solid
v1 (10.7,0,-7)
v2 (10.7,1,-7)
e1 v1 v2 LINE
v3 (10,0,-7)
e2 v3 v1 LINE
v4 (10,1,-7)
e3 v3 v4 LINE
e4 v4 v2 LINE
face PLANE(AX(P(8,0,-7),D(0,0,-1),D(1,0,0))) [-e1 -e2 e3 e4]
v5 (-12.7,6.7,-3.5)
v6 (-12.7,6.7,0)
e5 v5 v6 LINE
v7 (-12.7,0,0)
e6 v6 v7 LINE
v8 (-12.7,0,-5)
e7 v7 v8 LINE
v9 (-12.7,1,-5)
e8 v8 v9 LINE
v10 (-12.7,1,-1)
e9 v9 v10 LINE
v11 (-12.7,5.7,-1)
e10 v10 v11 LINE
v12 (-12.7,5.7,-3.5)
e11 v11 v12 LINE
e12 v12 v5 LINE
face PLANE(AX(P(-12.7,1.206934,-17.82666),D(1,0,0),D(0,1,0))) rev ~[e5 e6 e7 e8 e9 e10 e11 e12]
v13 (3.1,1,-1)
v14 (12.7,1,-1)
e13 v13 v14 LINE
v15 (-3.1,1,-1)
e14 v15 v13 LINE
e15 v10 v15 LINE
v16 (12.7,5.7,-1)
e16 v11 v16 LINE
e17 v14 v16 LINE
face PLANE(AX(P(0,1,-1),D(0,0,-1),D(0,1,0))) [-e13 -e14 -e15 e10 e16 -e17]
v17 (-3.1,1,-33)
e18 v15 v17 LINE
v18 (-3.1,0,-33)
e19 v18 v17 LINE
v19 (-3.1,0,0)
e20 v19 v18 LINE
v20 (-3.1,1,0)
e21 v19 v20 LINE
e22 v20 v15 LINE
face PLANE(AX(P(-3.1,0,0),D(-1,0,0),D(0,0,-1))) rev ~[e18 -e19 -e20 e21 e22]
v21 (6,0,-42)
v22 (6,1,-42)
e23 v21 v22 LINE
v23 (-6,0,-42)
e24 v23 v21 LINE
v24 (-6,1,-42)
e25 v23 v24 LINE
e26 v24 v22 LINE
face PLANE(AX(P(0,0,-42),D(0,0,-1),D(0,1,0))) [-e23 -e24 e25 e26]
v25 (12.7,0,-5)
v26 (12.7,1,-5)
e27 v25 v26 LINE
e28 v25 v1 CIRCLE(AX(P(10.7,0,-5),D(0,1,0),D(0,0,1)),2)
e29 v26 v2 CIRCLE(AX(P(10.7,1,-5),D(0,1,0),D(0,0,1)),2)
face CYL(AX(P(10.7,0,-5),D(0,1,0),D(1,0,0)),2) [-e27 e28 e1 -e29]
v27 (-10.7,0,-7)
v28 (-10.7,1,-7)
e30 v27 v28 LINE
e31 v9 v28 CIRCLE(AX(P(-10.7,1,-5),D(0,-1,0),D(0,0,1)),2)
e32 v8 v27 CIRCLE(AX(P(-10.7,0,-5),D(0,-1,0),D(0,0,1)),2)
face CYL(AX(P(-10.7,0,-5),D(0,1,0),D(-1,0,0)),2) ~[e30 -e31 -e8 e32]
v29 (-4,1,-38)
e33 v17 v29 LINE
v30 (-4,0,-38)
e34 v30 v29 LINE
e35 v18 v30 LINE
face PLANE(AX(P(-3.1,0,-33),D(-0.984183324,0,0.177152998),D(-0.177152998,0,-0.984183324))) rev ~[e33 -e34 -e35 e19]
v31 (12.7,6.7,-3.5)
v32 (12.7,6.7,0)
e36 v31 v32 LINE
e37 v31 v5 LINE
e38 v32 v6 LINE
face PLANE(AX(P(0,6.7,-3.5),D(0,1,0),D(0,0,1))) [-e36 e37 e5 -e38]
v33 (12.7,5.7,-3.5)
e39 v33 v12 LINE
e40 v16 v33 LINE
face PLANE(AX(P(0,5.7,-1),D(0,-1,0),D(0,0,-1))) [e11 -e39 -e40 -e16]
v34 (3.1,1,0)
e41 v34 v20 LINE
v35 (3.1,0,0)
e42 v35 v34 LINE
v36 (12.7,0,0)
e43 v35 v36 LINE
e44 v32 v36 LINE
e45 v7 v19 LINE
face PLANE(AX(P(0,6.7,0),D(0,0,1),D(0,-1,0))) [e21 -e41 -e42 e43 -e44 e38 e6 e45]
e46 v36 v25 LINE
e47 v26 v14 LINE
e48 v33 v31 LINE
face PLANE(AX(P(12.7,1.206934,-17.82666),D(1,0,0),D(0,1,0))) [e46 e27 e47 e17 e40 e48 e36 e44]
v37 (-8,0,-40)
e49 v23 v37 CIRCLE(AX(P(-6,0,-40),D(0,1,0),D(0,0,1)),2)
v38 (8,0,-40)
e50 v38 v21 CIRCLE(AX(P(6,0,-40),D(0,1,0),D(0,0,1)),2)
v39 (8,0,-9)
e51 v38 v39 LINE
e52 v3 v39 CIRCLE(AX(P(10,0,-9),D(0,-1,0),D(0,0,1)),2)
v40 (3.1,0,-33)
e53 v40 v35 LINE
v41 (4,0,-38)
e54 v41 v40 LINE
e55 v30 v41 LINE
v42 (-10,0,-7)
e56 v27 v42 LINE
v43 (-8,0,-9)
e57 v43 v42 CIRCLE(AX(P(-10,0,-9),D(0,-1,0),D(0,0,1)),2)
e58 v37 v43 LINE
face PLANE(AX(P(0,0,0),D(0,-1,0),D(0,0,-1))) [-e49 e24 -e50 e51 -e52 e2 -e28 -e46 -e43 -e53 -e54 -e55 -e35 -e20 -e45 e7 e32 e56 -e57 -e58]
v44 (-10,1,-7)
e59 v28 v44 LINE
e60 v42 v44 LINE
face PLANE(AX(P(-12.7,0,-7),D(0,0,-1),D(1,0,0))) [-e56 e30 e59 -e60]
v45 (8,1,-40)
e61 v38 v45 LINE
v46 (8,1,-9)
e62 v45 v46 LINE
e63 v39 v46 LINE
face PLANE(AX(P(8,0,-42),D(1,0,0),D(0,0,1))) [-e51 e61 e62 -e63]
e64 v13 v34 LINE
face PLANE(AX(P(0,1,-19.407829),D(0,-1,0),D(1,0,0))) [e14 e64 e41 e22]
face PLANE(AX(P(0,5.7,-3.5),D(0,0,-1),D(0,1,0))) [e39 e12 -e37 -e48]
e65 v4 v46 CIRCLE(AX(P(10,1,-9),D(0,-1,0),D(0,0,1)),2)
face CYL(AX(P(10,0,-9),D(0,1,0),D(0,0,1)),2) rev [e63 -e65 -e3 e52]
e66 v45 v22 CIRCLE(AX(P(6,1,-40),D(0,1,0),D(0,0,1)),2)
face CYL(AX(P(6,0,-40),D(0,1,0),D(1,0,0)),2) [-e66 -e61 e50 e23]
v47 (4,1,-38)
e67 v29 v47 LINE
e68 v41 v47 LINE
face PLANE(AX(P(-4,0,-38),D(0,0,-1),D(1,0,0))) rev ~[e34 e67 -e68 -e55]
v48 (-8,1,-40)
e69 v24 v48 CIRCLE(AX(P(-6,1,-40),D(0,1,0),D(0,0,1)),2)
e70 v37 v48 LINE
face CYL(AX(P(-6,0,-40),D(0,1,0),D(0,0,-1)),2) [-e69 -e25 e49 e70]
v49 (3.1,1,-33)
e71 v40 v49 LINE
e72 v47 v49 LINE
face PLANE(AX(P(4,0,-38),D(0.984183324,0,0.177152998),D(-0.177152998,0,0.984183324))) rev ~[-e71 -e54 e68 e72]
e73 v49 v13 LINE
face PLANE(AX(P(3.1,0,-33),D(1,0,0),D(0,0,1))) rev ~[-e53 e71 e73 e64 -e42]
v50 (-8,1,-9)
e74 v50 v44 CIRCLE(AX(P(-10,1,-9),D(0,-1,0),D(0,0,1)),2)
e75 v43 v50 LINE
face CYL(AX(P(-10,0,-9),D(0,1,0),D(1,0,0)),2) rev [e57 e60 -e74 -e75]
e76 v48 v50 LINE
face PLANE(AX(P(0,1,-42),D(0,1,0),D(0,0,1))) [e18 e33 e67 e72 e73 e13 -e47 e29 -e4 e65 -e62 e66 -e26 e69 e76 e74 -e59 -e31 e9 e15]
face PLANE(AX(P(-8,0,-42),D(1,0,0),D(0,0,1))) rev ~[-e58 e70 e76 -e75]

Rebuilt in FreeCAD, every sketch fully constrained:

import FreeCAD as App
import Part
import Sketcher

V = App.Vector


def edges_at(feature, points):
    """Names of the edges that pass closest to the given points."""
    edges = feature.Shape.Edges
    near = lambda p: min(range(len(edges)), key=lambda i: edges[i].distToShape(Part.Vertex(*p))[0])
    return sorted({f"Edge{near(p) + 1}" for p in points})


def add_polygon(sketch, points):
    """Adds a closed chain of lines whose ends are joined by coincident constraints."""
    first, n = sketch.GeometryCount, len(points)
    for a, b in zip(points, points[1:] + points[:1]):
        sketch.addGeometry(Part.LineSegment(App.Vector(*a, 0), App.Vector(*b, 0)), False)
    for i in range(n):
        sketch.addConstraint(Sketcher.Constraint("Coincident", first + i, 2, first + (i + 1) % n, 1))

doc = App.newDocument("Part")
body = doc.addObject("PartDesign::Body", "Body")

# Sketch on YZ plane
sketch1 = body.newObject("Sketcher::SketchObject", "Sketch")
sketch1.AttachmentSupport = (doc.getObject("YZ_Plane"), [""])
sketch1.MapMode = "FlatFace"
add_polygon(sketch1, [(6.7, 0), (0, 0), (0, -42), (1, -42), (1, -1), (5.7, -1), (5.7, -3.5), (6.7, -3.5)])  # lines 0-7
sketch1.addConstraint([
    Sketcher.Constraint("Horizontal", 0),
    Sketcher.Constraint("Vertical", 1),
    Sketcher.Constraint("Horizontal", 2),
    Sketcher.Constraint("Vertical", 3),
    Sketcher.Constraint("Horizontal", 4),
    Sketcher.Constraint("Vertical", 5),
    Sketcher.Constraint("Horizontal", 6),
    Sketcher.Constraint("Vertical", 7),
    Sketcher.Constraint("Coincident", 0, 2, -1, 1),
    Sketcher.Constraint("Equal", 2, 6),
    Sketcher.Constraint("DistanceX", 2, 1, 2, 2, 1.0),
    Sketcher.Constraint("DistanceY", 1, 2, 1, 1, 42.0),
    Sketcher.Constraint("DistanceY", 3, 1, 3, 2, 41.0),
    Sketcher.Constraint("DistanceX", 0, 2, 0, 1, 6.7),
    Sketcher.Constraint("DistanceY", 5, 2, 5, 1, 2.5),
])
pad1 = body.newObject("PartDesign::Pad", "Pad")
pad1.Profile = sketch1
pad1.Length = 25.4
pad1.Midplane = True

# Sketch on XZ plane
sketch2 = body.newObject("Sketcher::SketchObject", "Sketch001")
sketch2.AttachmentSupport = (doc.getObject("XZ_Plane"), [""])
sketch2.MapMode = "FlatFace"
add_polygon(sketch2, [(3.1, 0), (-3.1, 0), (-3.1, -33), (-4, -38), (4, -38), (3.1, -33)])  # lines 0-5
add_polygon(sketch2, [(-12.7, -7), (-12.7, -42), (-8, -42), (-8, -7)])  # lines 6-9
add_polygon(sketch2, [(8, -7), (8, -42), (12.7, -42), (12.7, -7)])  # lines 10-13
sketch2.addConstraint([
    Sketcher.Constraint("Horizontal", 0),
    Sketcher.Constraint("Vertical", 1),
    Sketcher.Constraint("Horizontal", 3),
    Sketcher.Constraint("Vertical", 5),
    Sketcher.Constraint("Vertical", 6),
    Sketcher.Constraint("Horizontal", 7),
    Sketcher.Constraint("Vertical", 8),
    Sketcher.Constraint("Horizontal", 9),
    Sketcher.Constraint("Vertical", 10),
    Sketcher.Constraint("Horizontal", 11),
    Sketcher.Constraint("Vertical", 12),
    Sketcher.Constraint("Horizontal", 13),
    Sketcher.Constraint("Symmetric", 0, 2, 5, 2, -1, 1),
    Sketcher.Constraint("Symmetric", 7, 2, 10, 2, -2),
    Sketcher.Constraint("Symmetric", 9, 2, 12, 2, -2),
    Sketcher.Constraint("Horizontal", 1, 2, 4, 2),
    Sketcher.Constraint("Equal", 2, 4),
    Sketcher.Constraint("DistanceX", 3, 1, 3, 2, 8.0),
    Sketcher.Constraint("DistanceY", 1, 2, 1, 1, 33.0),
    Sketcher.Constraint("DistanceY", 6, 2, 6, 1, 35.0),
    Sketcher.Constraint("DistanceX", 0, 2, 0, 1, 6.2),
    Sketcher.Constraint("DistanceX", 7, 1, 7, 2, 4.7),
    Sketcher.Constraint("DistanceY", 2, 2, -1, 1, 38.0),
    Sketcher.Constraint("DistanceY", 6, 2, -1, 1, 42.0),
    Sketcher.Constraint("DistanceX", 7, 2, -1, 1, 8.0),
])
pocket1 = body.newObject("PartDesign::Pocket", "Pocket")
pocket1.Profile = sketch2
pocket1.Length = 1
doc.recompute()

fillet = body.newObject("PartDesign::Fillet", "Fillet")
fillet.Base = (pocket1, edges_at(pocket1, [
    (8, 0.5, -42),
    (-8, 0.5, -42),
    (-8, 0.5, -7),
    (-12.7, 0.5, -7),
    (8, 0.5, -7),
    (12.7, 0.5, -7),
]))
fillet.Radius = 2

doc.recompute()
